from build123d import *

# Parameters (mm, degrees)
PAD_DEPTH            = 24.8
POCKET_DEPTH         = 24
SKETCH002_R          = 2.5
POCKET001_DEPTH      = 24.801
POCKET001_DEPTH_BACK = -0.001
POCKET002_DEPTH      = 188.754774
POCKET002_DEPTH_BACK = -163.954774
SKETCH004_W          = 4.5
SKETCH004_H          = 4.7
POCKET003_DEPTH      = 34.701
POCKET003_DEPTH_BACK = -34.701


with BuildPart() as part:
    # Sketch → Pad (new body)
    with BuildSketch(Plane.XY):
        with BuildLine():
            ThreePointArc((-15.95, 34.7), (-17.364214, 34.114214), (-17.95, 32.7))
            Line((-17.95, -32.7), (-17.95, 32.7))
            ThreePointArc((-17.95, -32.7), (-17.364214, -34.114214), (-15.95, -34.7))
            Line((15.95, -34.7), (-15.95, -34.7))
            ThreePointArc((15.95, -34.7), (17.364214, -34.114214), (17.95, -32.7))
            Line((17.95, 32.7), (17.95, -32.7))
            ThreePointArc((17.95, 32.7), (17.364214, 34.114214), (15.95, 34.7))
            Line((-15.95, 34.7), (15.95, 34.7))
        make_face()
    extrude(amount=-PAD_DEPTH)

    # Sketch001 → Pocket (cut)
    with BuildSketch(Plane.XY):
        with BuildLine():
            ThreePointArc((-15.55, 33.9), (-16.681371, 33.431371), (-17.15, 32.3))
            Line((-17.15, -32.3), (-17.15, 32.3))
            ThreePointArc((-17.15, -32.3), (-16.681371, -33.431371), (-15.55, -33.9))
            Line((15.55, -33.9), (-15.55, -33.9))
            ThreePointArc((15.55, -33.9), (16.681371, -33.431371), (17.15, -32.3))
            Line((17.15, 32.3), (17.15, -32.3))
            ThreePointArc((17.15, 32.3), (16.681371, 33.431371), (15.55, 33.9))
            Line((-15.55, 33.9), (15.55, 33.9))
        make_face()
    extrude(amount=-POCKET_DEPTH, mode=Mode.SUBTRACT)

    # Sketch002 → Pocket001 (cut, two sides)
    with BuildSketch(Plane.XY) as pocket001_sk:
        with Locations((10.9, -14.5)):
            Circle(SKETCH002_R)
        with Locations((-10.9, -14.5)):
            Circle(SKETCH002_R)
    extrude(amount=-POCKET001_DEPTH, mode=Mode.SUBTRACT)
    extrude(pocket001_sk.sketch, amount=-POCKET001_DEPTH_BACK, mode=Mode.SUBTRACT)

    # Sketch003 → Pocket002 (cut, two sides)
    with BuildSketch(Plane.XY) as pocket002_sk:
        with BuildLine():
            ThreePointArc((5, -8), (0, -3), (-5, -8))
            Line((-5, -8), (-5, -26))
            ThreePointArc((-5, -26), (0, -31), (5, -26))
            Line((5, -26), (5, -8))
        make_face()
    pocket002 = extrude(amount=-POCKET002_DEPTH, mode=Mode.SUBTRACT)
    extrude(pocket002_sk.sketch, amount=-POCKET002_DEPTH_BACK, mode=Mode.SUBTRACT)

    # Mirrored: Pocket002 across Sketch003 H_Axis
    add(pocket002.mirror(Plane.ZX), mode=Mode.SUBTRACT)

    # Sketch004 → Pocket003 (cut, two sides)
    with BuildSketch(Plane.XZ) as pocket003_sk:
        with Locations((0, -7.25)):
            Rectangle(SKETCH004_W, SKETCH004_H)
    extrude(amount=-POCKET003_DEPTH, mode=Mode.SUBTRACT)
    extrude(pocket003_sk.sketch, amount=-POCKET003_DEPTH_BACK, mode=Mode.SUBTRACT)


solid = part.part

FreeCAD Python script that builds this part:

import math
import FreeCAD as App
import Part
import Sketcher

V = App.Vector
Q = App.Units.Quantity


def add_polygon(sketch, points):
    """Adds a closed chain of lines whose ends are joined by coincident constraints."""
    first, n = sketch.GeometryCount, len(points)
    for a, b in zip(points, points[1:] + points[:1]):
        sketch.addGeometry(Part.LineSegment(App.Vector(*a, 0), App.Vector(*b, 0)), False)
    for i in range(n):
        sketch.addConstraint(Sketcher.Constraint("Coincident", first + i, 2, first + (i + 1) % n, 1))

doc = App.newDocument("Part")
body = doc.addObject("PartDesign::Body", "Body")

sketch1 = body.newObject("Sketcher::SketchObject", "Sketch")
sketch1.AttachmentSupport = (doc.getObject("XY_Plane"), [""])
sketch1.MapMode = "FlatFace"
sketch1.addGeometry(Part.ArcOfCircle(Part.Circle(V(-16, 32.7, 0), V(0, 0, 1), 2), math.radians(90), math.radians(180)), False)
sketch1.addGeometry(Part.LineSegment(V(-17.9, 32.7, 0), V(-17.9, -32.7, 0)), False)
sketch1.addGeometry(Part.ArcOfCircle(Part.Circle(V(-16, -32.7, 0), V(0, 0, 1), 2), math.radians(180), math.radians(270)), False)
sketch1.addGeometry(Part.LineSegment(V(-15.9, -34.7, 0), V(15.9, -34.7, 0)), False)
sketch1.addGeometry(Part.ArcOfCircle(Part.Circle(V(16, -32.7, 0), V(0, 0, 1), 2), math.radians(-90), math.radians(0)), False)
sketch1.addGeometry(Part.LineSegment(V(17.9, -32.7, 0), V(17.9, 32.7, 0)), False)
sketch1.addGeometry(Part.ArcOfCircle(Part.Circle(V(16, 32.7, 0), V(0, 0, 1), 2), math.radians(0), math.radians(90)), False)
sketch1.addGeometry(Part.LineSegment(V(15.9, 34.7, 0), V(-15.9, 34.7, 0)), False)
sketch1.addConstraint(Sketcher.Constraint("Tangent", 0, 2, 1, 1))
sketch1.addConstraint(Sketcher.Constraint("Tangent", 1, 2, 2, 1))
sketch1.addConstraint(Sketcher.Constraint("Tangent", 2, 2, 3, 1))
sketch1.addConstraint(Sketcher.Constraint("Tangent", 3, 2, 4, 1))
sketch1.addConstraint(Sketcher.Constraint("Tangent", 4, 2, 5, 1))
sketch1.addConstraint(Sketcher.Constraint("Tangent", 5, 2, 6, 1))
sketch1.addConstraint(Sketcher.Constraint("Tangent", 6, 2, 7, 1))
sketch1.addConstraint(Sketcher.Constraint("Tangent", 7, 2, 0, 1))
sketch1.addConstraint(Sketcher.Constraint("Vertical", 1))
sketch1.addConstraint(Sketcher.Constraint("Horizontal", 3))
sketch1.addConstraint(Sketcher.Constraint("Vertical", 5))
sketch1.addConstraint(Sketcher.Constraint("Horizontal", 7))
sketch1.addConstraint(Sketcher.Constraint("Equal", 0, 2))
sketch1.addConstraint(Sketcher.Constraint("Equal", 2, 4))
sketch1.addConstraint(Sketcher.Constraint("Equal", 4, 6))
sketch1.addConstraint(Sketcher.Constraint("Symmetric", 0, 3, 4, 3, -1, 1))
sketch1.addConstraint(Sketcher.Constraint("Radius", 0, Q("1.999999 mm")))
sketch1.addConstraint(Sketcher.Constraint("DistanceX", 3, 1, 3, 2, Q("31.9 mm")))
sketch1.addConstraint(Sketcher.Constraint("DistanceY", 1, 2, 1, 1, Q("65.4 mm")))
pad1 = body.newObject("PartDesign::Pad", "Pad")
pad1.Profile = sketch1
pad1.Length = 24.8
pad1.Reversed = True

sketch2 = body.newObject("Sketcher::SketchObject", "Sketch001")
sketch2.AttachmentSupport = (doc.getObject("XY_Plane"), [""])
sketch2.MapMode = "FlatFace"
sketch2.addGeometry(Part.ArcOfCircle(Part.Circle(V(-15.6, 32.3, 0), V(0, 0, 1), 1.6), math.radians(90), math.radians(180)), False)
sketch2.addGeometry(Part.LineSegment(V(-17.1, 32.3, 0), V(-17.1, -32.3, 0)), False)
sketch2.addGeometry(Part.ArcOfCircle(Part.Circle(V(-15.6, -32.3, 0), V(0, 0, 1), 1.6), math.radians(180), math.radians(270)), False)
sketch2.addGeometry(Part.LineSegment(V(-15.6, -33.9, 0), V(15.6, -33.9, 0)), False)
sketch2.addGeometry(Part.ArcOfCircle(Part.Circle(V(15.6, -32.3, 0), V(0, 0, 1), 1.6), math.radians(-90), math.radians(0)), False)
sketch2.addGeometry(Part.LineSegment(V(17.1, -32.3, 0), V(17.1, 32.3, 0)), False)
sketch2.addGeometry(Part.ArcOfCircle(Part.Circle(V(15.6, 32.3, 0), V(0, 0, 1), 1.6), math.radians(0), math.radians(90)), False)
sketch2.addGeometry(Part.LineSegment(V(15.6, 33.9, 0), V(-15.6, 33.9, 0)), False)
sketch2.addConstraint(Sketcher.Constraint("Tangent", 0, 2, 1, 1))
sketch2.addConstraint(Sketcher.Constraint("Tangent", 1, 2, 2, 1))
sketch2.addConstraint(Sketcher.Constraint("Tangent", 2, 2, 3, 1))
sketch2.addConstraint(Sketcher.Constraint("Tangent", 3, 2, 4, 1))
sketch2.addConstraint(Sketcher.Constraint("Tangent", 4, 2, 5, 1))
sketch2.addConstraint(Sketcher.Constraint("Tangent", 5, 2, 6, 1))
sketch2.addConstraint(Sketcher.Constraint("Tangent", 6, 2, 7, 1))
sketch2.addConstraint(Sketcher.Constraint("Tangent", 7, 2, 0, 1))
sketch2.addConstraint(Sketcher.Constraint("Vertical", 1))
sketch2.addConstraint(Sketcher.Constraint("Horizontal", 3))
sketch2.addConstraint(Sketcher.Constraint("Vertical", 5))
sketch2.addConstraint(Sketcher.Constraint("Horizontal", 7))
sketch2.addConstraint(Sketcher.Constraint("Equal", 0, 2))
sketch2.addConstraint(Sketcher.Constraint("Equal", 2, 4))
sketch2.addConstraint(Sketcher.Constraint("Equal", 4, 6))
sketch2.addConstraint(Sketcher.Constraint("Symmetric", 0, 3, 4, 3, -1, 1))
sketch2.addConstraint(Sketcher.Constraint("Radius", 0, Q("1.599999 mm")))
sketch2.addConstraint(Sketcher.Constraint("DistanceX", 3, 1, 3, 2, Q("31.1 mm")))
sketch2.addConstraint(Sketcher.Constraint("DistanceY", 1, 2, 1, 1, Q("64.6 mm")))
pocket1 = body.newObject("PartDesign::Pocket", "Pocket")
pocket1.Profile = sketch2
pocket1.Length = 24

sketch3 = body.newObject("Sketcher::SketchObject", "Sketch002")
sketch3.AttachmentSupport = (doc.getObject("XY_Plane"), [""])
sketch3.MapMode = "FlatFace"
sketch3.addGeometry(Part.Circle(V(10.9, -14.5, 0), V(0, 0, 1), 2.5), False)
sketch3.addGeometry(Part.Circle(V(-10.9, -14.5, 0), V(0, 0, 1), 2.5), False)
sketch3.addConstraint(Sketcher.Constraint("Equal", 0, 1))
sketch3.addConstraint(Sketcher.Constraint("Symmetric", 0, 3, 1, 3, -2))
sketch3.addConstraint(Sketcher.Constraint("Diameter", 0, Q("5 mm")))
sketch3.addConstraint(Sketcher.Constraint("DistanceX", -1, 1, 0, 3, Q("10.9 mm")))
sketch3.addConstraint(Sketcher.Constraint("DistanceY", 0, 3, -1, 1, Q("14.5 mm")))
pocket2 = body.newObject("PartDesign::Pocket", "Pocket001")
pocket2.Profile = sketch3
pocket2.Type = "ThroughAll"
pocket2.Midplane = True

sketch4 = body.newObject("Sketcher::SketchObject", "Sketch003")
sketch4.AttachmentSupport = (doc.getObject("XY_Plane"), [""])
sketch4.MapMode = "FlatFace"
sketch4.addGeometry(Part.ArcOfCircle(Part.Circle(V(0, -8, 0), V(0, 0, 1), 5), math.radians(0), math.radians(180)), False)
sketch4.addGeometry(Part.LineSegment(V(-5, -8, 0), V(-5, -26, 0)), False)
sketch4.addGeometry(Part.ArcOfCircle(Part.Circle(V(0, -26, 0), V(0, 0, 1), 5), math.radians(180), math.radians(360)), False)
sketch4.addGeometry(Part.LineSegment(V(5, -26, 0), V(5, -8, 0)), False)
sketch4.addConstraint(Sketcher.Constraint("Tangent", 0, 2, 1, 1))
sketch4.addConstraint(Sketcher.Constraint("Tangent", 1, 2, 2, 1))
sketch4.addConstraint(Sketcher.Constraint("Tangent", 2, 2, 3, 1))
sketch4.addConstraint(Sketcher.Constraint("Tangent", 3, 2, 0, 1))
sketch4.addConstraint(Sketcher.Constraint("Vertical", 1))
sketch4.addConstraint(Sketcher.Constraint("Vertical", 3))
sketch4.addConstraint(Sketcher.Constraint("PointOnObject", 0, 3, -2))
sketch4.addConstraint(Sketcher.Constraint("Radius", 0, Q("5 mm")))
sketch4.addConstraint(Sketcher.Constraint("DistanceY", 1, 2, 1, 1, Q("18 mm")))
sketch4.addConstraint(Sketcher.Constraint("DistanceY", 0, 3, -1, 1, Q("8 mm")))
pocket3 = body.newObject("PartDesign::Pocket", "Pocket002")
pocket3.Profile = sketch4
pocket3.Type = "ThroughAll"
pocket3.Midplane = True
doc.recompute()

mirrored = body.newObject("PartDesign::Mirrored", "Mirrored")
mirrored.Originals = [pocket3]
mirrored.MirrorPlane = (doc.getObject("XZ_Plane"), [""])
body.Tip = mirrored

sketch5 = body.newObject("Sketcher::SketchObject", "Sketch004")
sketch5.AttachmentSupport = (doc.getObject("XZ_Plane"), [""])
sketch5.MapMode = "FlatFace"
add_polygon(sketch5, [(-2.2, -4.9), (-2.2, -9.6), (2.2, -9.6), (2.2, -4.9)])
sketch5.addConstraint(Sketcher.Constraint("Vertical", 0))
sketch5.addConstraint(Sketcher.Constraint("Horizontal", 1))
sketch5.addConstraint(Sketcher.Constraint("Vertical", 2))
sketch5.addConstraint(Sketcher.Constraint("Horizontal", 3))
sketch5.addConstraint(Sketcher.Constraint("DistanceX", 1, 1, 1, 2, Q("4.5 mm")))
sketch5.addConstraint(Sketcher.Constraint("DistanceY", 0, 2, 0, 1, Q("4.7 mm")))
sketch5.addConstraint(Sketcher.Constraint("DistanceY", 0, 2, -1, 1, Q("9.6 mm")))
sketch5.addConstraint(Sketcher.Constraint("DistanceX", 0, 2, -1, 1, Q("2.25 mm")))
pocket4 = body.newObject("PartDesign::Pocket", "Pocket003")
pocket4.Profile = sketch5
pocket4.Type = "ThroughAll"
pocket4.Midplane = True

doc.recompute()
